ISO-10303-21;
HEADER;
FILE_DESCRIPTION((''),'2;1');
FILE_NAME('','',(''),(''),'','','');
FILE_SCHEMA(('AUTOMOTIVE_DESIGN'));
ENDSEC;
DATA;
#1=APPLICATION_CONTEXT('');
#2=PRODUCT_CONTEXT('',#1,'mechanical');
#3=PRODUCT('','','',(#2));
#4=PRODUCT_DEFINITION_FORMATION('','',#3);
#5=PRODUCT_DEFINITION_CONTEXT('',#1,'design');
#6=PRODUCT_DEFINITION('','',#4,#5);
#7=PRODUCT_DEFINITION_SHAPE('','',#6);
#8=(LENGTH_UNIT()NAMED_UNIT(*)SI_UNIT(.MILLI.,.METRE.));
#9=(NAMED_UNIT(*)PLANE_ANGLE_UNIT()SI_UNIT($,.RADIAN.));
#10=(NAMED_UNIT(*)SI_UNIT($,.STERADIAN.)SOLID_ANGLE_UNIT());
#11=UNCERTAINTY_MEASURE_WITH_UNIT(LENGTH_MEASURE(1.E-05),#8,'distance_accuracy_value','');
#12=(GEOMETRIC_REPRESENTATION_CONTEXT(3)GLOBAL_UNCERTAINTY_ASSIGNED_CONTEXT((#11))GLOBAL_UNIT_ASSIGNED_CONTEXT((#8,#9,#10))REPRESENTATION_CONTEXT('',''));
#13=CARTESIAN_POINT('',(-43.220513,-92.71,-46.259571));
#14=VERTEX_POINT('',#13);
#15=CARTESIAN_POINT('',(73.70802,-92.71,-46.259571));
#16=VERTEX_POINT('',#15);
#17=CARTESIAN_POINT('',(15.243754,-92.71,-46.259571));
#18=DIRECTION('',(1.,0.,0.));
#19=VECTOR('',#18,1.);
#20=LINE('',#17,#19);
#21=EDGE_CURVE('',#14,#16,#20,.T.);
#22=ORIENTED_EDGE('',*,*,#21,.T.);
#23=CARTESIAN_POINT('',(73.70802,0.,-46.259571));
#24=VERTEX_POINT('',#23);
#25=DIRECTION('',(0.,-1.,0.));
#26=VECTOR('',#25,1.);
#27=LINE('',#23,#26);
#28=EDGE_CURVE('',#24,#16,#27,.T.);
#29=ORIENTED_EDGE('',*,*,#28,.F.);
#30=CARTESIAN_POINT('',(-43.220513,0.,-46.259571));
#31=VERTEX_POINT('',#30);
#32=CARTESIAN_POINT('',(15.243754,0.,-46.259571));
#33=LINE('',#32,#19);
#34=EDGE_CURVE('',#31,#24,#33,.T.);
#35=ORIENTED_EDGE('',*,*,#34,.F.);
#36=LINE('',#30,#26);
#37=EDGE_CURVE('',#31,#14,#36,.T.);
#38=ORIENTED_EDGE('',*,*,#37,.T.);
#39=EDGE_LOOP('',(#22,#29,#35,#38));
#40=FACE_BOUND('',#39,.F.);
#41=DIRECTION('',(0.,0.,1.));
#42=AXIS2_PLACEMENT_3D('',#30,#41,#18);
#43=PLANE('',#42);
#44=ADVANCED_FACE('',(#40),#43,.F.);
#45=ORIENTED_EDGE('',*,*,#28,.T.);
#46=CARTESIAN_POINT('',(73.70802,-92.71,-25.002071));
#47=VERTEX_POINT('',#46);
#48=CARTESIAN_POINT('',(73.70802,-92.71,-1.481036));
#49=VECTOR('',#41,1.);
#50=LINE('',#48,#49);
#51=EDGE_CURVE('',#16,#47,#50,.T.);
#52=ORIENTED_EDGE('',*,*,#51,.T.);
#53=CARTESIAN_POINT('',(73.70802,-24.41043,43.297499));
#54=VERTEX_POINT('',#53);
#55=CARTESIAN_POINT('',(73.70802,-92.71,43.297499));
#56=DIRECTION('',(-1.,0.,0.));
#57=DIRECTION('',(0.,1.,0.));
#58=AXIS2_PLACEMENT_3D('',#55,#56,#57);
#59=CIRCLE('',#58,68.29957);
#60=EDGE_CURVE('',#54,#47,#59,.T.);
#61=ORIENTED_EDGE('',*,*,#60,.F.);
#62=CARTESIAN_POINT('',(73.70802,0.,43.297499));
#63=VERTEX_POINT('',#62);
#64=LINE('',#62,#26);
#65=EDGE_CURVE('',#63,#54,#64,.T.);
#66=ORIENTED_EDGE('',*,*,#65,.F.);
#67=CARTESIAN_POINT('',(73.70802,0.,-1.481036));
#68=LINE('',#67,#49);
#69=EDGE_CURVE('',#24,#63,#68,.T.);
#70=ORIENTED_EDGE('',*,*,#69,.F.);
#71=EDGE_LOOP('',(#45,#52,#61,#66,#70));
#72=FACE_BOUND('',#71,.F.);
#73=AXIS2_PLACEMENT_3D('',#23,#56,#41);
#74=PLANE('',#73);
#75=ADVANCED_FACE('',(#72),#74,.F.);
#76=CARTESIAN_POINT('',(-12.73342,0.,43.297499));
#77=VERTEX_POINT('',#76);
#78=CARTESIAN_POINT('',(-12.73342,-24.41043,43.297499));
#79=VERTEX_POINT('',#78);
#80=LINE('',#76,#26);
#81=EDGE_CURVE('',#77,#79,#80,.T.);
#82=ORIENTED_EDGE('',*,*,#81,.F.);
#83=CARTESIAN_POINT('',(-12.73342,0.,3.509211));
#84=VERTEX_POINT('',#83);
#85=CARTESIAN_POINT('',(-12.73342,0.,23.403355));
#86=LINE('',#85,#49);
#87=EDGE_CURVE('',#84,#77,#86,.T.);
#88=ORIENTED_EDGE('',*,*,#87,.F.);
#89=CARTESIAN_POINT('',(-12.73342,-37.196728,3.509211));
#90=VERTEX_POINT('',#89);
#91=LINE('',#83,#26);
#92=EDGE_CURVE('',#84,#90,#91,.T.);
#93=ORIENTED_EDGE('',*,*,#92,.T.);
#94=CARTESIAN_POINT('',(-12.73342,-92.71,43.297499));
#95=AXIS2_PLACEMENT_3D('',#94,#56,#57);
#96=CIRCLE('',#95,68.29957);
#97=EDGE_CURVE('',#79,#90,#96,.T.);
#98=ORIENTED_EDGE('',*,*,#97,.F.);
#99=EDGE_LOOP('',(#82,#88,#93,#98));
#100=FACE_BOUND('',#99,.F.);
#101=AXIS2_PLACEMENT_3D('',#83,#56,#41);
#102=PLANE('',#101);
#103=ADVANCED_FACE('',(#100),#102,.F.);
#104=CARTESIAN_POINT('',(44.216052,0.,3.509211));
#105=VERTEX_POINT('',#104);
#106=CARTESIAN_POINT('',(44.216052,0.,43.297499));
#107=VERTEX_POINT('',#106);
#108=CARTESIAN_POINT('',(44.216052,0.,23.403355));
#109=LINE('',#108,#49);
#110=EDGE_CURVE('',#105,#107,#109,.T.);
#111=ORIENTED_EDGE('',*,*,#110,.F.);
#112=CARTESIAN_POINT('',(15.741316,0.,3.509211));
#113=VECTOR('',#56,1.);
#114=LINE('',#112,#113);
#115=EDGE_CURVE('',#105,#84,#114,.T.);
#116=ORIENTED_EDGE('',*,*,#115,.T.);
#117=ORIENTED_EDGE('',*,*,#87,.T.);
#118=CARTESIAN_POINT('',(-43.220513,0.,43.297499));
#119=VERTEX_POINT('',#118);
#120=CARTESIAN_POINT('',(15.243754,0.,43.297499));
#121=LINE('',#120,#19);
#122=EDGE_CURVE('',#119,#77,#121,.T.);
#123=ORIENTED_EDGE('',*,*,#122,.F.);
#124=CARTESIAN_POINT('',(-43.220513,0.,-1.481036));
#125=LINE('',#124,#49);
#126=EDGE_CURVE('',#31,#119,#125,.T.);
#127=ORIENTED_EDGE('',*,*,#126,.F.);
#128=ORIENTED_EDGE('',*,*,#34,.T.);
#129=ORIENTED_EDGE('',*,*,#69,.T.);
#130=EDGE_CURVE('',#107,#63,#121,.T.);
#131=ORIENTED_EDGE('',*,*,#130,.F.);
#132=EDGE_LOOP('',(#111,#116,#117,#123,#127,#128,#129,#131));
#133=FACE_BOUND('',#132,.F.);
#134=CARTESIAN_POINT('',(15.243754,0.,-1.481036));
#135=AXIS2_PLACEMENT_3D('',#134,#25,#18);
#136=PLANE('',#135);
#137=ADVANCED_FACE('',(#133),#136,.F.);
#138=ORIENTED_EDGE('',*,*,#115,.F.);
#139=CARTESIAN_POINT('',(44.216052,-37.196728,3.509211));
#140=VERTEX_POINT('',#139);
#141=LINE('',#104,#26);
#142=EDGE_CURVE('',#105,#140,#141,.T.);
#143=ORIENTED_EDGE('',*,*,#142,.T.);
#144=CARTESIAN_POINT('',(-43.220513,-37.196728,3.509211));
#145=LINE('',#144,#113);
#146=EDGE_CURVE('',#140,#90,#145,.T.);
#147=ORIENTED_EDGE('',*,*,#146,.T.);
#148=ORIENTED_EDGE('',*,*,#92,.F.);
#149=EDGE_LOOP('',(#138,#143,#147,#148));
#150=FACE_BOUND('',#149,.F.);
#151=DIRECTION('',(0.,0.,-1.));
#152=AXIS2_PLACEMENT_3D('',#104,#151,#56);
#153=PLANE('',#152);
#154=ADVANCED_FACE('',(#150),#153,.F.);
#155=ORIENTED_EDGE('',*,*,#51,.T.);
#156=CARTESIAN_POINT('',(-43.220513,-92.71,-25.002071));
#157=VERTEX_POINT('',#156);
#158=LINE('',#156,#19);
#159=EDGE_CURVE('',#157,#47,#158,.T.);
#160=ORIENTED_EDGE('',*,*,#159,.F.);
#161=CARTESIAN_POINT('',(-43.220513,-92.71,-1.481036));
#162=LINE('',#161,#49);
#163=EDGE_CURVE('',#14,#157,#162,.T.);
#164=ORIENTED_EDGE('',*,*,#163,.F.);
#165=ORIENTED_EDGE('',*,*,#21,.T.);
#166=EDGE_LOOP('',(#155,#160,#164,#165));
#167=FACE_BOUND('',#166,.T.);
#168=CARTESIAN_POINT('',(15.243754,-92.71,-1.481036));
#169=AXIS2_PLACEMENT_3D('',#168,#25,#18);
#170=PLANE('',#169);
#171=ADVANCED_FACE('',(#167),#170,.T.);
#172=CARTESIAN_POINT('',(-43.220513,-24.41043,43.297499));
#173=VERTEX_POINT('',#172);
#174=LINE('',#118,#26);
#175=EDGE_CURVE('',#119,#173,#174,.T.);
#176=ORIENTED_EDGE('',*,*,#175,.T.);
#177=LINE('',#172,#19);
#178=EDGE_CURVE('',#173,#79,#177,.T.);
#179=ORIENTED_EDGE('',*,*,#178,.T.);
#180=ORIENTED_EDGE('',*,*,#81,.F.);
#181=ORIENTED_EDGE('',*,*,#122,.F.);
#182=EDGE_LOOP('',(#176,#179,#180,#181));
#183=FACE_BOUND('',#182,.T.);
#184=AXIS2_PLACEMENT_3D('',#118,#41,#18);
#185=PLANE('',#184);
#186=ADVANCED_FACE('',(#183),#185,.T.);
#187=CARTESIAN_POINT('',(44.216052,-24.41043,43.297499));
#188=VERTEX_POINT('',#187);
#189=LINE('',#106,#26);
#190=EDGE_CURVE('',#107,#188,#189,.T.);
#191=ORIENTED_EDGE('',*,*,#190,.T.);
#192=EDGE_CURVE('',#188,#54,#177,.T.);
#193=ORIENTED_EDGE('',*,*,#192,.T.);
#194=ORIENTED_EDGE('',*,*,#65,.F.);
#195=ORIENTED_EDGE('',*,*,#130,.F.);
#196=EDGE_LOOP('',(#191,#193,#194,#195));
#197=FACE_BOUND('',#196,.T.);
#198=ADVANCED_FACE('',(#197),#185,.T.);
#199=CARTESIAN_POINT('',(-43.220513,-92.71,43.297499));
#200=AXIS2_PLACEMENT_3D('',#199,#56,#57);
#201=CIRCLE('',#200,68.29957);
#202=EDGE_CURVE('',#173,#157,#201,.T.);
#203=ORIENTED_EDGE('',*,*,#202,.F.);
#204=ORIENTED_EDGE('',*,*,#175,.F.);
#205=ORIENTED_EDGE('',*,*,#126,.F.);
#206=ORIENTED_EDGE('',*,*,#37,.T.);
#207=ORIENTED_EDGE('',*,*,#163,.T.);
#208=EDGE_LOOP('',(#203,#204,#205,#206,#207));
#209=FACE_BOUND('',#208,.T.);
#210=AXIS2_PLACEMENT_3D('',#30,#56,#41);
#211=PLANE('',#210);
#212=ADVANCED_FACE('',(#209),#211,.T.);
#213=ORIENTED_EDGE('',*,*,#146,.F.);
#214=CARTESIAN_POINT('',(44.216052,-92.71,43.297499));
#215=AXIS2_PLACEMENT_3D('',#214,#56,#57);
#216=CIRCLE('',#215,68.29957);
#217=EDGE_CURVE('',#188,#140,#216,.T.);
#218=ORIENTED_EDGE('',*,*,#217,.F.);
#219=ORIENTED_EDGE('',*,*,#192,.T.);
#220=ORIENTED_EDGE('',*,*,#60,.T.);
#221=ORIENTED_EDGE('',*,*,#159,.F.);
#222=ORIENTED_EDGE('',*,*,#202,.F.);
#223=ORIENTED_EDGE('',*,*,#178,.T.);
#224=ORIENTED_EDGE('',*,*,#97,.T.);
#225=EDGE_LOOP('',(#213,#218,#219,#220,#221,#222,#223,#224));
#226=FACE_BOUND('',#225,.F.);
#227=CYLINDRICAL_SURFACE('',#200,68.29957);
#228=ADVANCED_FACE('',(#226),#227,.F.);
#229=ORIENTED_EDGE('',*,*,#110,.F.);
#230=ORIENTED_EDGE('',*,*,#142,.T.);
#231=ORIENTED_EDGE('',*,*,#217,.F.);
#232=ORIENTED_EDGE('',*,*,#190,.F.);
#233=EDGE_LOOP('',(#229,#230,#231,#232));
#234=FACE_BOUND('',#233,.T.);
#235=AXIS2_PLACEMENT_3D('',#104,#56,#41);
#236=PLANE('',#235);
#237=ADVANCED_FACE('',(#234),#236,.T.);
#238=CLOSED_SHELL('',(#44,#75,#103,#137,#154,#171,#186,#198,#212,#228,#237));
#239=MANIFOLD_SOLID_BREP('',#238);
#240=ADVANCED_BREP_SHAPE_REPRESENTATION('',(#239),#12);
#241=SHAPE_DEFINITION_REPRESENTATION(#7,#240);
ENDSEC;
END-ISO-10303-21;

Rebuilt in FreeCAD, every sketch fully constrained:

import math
import FreeCAD as App
import Part
import Sketcher

V = App.Vector
Q = App.Units.Quantity


def add_polygon(sketch, points):
    """Adds a closed chain of lines whose ends are joined by coincident constraints."""
    first, n = sketch.GeometryCount, len(points)
    for a, b in zip(points, points[1:] + points[:1]):
        sketch.addGeometry(Part.LineSegment(App.Vector(*a, 0), App.Vector(*b, 0)), False)
    for i in range(n):
        sketch.addConstraint(Sketcher.Constraint("Coincident", first + i, 2, first + (i + 1) % n, 1))

doc = App.newDocument("Part")
body = doc.addObject("PartDesign::Body", "Body")

# Sketch on XZ plane
sketch1 = body.newObject("Sketcher::SketchObject", "Sketch")
sketch1.AttachmentSupport = (doc.getObject("XZ_Plane"), [""])
sketch1.MapMode = "FlatFace"
add_polygon(sketch1, [(-43, 43), (-43, -46), (74, -46), (74, 43)])  # lines 0-3
sketch1.addConstraint([
    Sketcher.Constraint("Vertical", 0),
    Sketcher.Constraint("Horizontal", 1),
    Sketcher.Constraint("Vertical", 2),
    Sketcher.Constraint("Horizontal", 3),
    Sketcher.Constraint("DistanceY", 0, 2, 0, 1, Q("89.55707 mm")),
    Sketcher.Constraint("DistanceY", -1, 1, 2, 2, Q("43.297499 mm")),
    Sketcher.Constraint("DistanceX", 1, 1, 1, 2, Q("116.928533 mm")),
    Sketcher.Constraint("DistanceX", -1, 1, 1, 2, Q("73.70802 mm")),
])
pad1 = body.newObject("PartDesign::Pad", "Pad")
pad1.Profile = sketch1
pad1.Length = Q("3.65 in")

# Sketch on YZ plane
sketch2 = body.newObject("Sketcher::SketchObject", "Sketch001")
sketch2.AttachmentSupport = (doc.getObject("YZ_Plane"), [""])
sketch2.MapMode = "FlatFace"
sketch2.AttachmentOffset = App.Placement(V(0, 0, -43.220513), App.Rotation())
sketch2.addGeometry([
    Part.ArcOfCircle(Part.Circle(V(-93, 43, 0), V(0, 0, 1), 68), math.radians(180), math.radians(270)),
    Part.ArcOfCircle(Part.Circle(V(-93, 43, 0), V(0, 0, 1), 68), math.radians(0), math.radians(180)),
    Part.ArcOfCircle(Part.Circle(V(-93, 43, 0), V(0, 0, 1), 68), math.radians(-90), math.radians(0)),
], False)
sketch2.addConstraint([
    Sketcher.Constraint("Tangent", 0, 1, 1, 2),
    Sketcher.Constraint("Tangent", 1, 1, 2, 2),
    Sketcher.Constraint("Tangent", 2, 1, 0, 2),
    Sketcher.Constraint("Horizontal", 2, 3, 0, 1),
    Sketcher.Constraint("Horizontal", 0, 1, 1, 1),
    Sketcher.Constraint("Vertical", 1, 3, 2, 1),
    Sketcher.Constraint("DistanceX", 0, 3, -1, 1, Q("3.65 in")),
    Sketcher.Constraint("Radius", 0, Q("68.29957 mm")),
    Sketcher.Constraint("DistanceY", -1, 1, 0, 3, Q("43.297499 mm")),
])
pocket1 = body.newObject("PartDesign::Pocket", "Pocket")
pocket1.Profile = sketch2
pocket1.Type = "ThroughAll"
pocket1.Reversed = True

# Sketch on XZ plane
sketch3 = body.newObject("Sketcher::SketchObject", "Sketch002")
sketch3.AttachmentSupport = (doc.getObject("XZ_Plane"), [""])
sketch3.MapMode = "FlatFace"
add_polygon(sketch3, [(44, 43), (44, 4), (-13, 4), (-13, 43)])  # lines 0-3
sketch3.addConstraint([
    Sketcher.Constraint("Vertical", 0),
    Sketcher.Constraint("Horizontal", 1),
    Sketcher.Constraint("Vertical", 2),
    Sketcher.Constraint("Horizontal", 3),
    Sketcher.Constraint("DistanceY", 0, 2, 0, 1, Q("39.788289 mm")),
    Sketcher.Constraint("DistanceY", -1, 1, 2, 2, Q("43.297499 mm")),
    Sketcher.Constraint("DistanceX", 1, 2, 1, 1, Q("56.949472 mm")),
    Sketcher.Constraint("DistanceX", -1, 1, 0, 2, Q("44.216052 mm")),
])
pocket2 = body.newObject("PartDesign::Pocket", "Pocket001")
pocket2.Profile = sketch3
pocket2.Type = "ThroughAll"
pocket2.Reversed = True

doc.recompute()
